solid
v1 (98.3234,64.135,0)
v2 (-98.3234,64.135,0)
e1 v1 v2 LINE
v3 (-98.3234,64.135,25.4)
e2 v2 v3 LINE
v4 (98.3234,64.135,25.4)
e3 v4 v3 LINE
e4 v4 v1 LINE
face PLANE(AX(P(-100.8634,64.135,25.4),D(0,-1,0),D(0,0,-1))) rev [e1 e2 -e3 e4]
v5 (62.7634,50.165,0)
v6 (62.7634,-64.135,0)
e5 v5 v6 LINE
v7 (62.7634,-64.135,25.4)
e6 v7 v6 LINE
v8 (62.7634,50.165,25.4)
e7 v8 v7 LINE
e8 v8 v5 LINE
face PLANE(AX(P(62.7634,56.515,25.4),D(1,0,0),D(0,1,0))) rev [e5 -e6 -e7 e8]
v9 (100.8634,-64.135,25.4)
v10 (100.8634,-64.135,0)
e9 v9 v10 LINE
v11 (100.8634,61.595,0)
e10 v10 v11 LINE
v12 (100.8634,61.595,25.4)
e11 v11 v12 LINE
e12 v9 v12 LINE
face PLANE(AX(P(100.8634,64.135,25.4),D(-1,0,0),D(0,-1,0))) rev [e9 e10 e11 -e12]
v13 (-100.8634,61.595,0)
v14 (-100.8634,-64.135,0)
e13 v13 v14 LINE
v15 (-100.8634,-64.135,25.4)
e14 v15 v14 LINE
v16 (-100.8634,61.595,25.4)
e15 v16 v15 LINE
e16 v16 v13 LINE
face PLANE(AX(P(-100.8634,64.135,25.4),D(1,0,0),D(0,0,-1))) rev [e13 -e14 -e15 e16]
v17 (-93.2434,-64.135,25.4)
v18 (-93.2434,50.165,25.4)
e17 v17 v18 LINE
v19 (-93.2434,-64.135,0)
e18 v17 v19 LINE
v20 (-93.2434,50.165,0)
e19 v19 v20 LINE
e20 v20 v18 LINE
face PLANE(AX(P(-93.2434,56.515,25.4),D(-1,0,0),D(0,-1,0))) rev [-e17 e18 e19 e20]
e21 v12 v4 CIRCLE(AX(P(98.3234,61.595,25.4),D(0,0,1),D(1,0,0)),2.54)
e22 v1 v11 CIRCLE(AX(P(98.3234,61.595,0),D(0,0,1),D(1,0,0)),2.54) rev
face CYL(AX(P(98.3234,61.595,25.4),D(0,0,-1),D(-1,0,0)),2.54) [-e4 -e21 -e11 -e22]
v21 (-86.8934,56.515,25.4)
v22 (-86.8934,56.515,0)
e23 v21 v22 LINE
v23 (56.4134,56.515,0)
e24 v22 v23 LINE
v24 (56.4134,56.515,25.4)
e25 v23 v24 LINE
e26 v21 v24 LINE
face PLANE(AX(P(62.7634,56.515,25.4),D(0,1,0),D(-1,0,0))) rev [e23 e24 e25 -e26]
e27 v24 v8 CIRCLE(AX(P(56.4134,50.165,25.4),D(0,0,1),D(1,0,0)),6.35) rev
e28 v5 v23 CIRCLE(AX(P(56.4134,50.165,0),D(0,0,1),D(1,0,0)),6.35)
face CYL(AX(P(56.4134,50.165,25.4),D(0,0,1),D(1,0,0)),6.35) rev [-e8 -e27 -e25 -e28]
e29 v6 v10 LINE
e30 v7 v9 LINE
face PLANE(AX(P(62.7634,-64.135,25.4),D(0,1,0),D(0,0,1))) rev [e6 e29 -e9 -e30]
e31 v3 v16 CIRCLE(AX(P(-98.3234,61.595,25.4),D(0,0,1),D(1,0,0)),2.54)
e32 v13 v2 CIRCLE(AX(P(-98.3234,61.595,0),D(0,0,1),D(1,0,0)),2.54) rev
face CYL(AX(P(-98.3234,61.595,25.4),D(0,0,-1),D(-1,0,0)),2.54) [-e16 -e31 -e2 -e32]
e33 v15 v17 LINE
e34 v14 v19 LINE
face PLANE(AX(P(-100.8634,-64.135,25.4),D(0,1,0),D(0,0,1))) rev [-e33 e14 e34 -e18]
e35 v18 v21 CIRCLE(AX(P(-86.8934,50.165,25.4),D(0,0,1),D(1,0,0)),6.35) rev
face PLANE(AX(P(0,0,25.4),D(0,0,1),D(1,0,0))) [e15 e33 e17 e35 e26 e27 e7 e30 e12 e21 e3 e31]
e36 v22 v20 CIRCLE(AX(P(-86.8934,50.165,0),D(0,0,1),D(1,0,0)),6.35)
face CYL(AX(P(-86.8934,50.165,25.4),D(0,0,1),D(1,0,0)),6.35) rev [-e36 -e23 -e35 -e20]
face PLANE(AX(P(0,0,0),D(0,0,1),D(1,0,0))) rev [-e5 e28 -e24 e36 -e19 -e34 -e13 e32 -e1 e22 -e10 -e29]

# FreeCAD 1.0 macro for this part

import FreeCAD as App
import Part
import Sketcher
Q = App.Units.Quantity


def edges_at(feature, points):
    """Names of the edges that pass closest to the given points."""
    edges = feature.Shape.Edges
    near = lambda p: min(range(len(edges)), key=lambda i: edges[i].distToShape(Part.Vertex(*p))[0])
    return sorted({f"Edge{near(p) + 1}" for p in points})

doc = App.newDocument("Part")
params = doc.addObject("Spreadsheet::Sheet", "Params")
for row, (alias, value) in enumerate([
    ("sketch1_width", "1.5 in"),
    ("sketch1_width2", "0.3 in"),
    ("sketch1_height", "5.05 in"),
    ("sketch1_height2", "4.75 in"),
    ("sketch1_width3", "7.942 in"),
    ("pad1_length", "1 in"),
    ("fillet_radius", "0.25 in"),
    ("fillet2_radius", "0.1 in"),
], start=1):
    params.set(f"A{row}", alias)
    params.set(f"B{row}", "=" + value)
    params.setAlias(f"B{row}", alias)

body = doc.addObject("PartDesign::Body", "Body")

sketch1 = doc.addObject("Sketcher::SketchObject", "Sketch")
body.addObject(sketch1)
sketch1.AttachmentSupport = (doc.XY_Plane, [""])
sketch1.MapMode = "FlatFace"
sketch1.addGeometry([
    Part.LineSegment(App.Vector(63, -64, 0), App.Vector(101, -64, 0)),
    Part.LineSegment(App.Vector(101, -64, 0), App.Vector(101, 64, 0)),
    Part.LineSegment(App.Vector(101, 64, 0), App.Vector(-101, 64, 0)),
    Part.LineSegment(App.Vector(-101, 64, 0), App.Vector(-101, -64, 0)),
    Part.LineSegment(App.Vector(-101, -64, 0), App.Vector(-93, -64, 0)),
    Part.LineSegment(App.Vector(-93, -64, 0), App.Vector(-93, 57, 0)),
    Part.LineSegment(App.Vector(-93, 57, 0), App.Vector(63, 57, 0)),
    Part.LineSegment(App.Vector(63, 57, 0), App.Vector(63, -64, 0)),
], False)
sketch1.addConstraint([
    Sketcher.Constraint("Coincident", 0, 2, 1, 1),
    Sketcher.Constraint("Coincident", 1, 2, 2, 1),
    Sketcher.Constraint("Coincident", 2, 2, 3, 1),
    Sketcher.Constraint("Coincident", 3, 2, 4, 1),
    Sketcher.Constraint("Coincident", 4, 2, 5, 1),
    Sketcher.Constraint("Coincident", 5, 2, 6, 1),
    Sketcher.Constraint("Coincident", 6, 2, 7, 1),
    Sketcher.Constraint("Coincident", 7, 2, 0, 1),
    Sketcher.Constraint("Horizontal", 0),
    Sketcher.Constraint("Vertical", 1),
    Sketcher.Constraint("Horizontal", 2),
    Sketcher.Constraint("Vertical", 3),
    Sketcher.Constraint("Horizontal", 4),
    Sketcher.Constraint("Vertical", 5),
    Sketcher.Constraint("Horizontal", 6),
    Sketcher.Constraint("Vertical", 7),
    Sketcher.Constraint("Symmetric", 0, 2, 2, 2, -1, 1),
    Sketcher.Constraint("Horizontal", 0, 2, 3, 2),
    Sketcher.Constraint("DistanceX", 0, 1, 0, 2, Q("1.5 in")),
    Sketcher.Constraint("DistanceX", 4, 1, 4, 2, Q("0.3 in")),
    Sketcher.Constraint("DistanceY", 1, 1, 1, 2, Q("5.05 in")),
    Sketcher.Constraint("DistanceY", 5, 1, 5, 2, Q("4.75 in")),
    Sketcher.Constraint("DistanceX", 2, 2, 2, 1, Q("7.942 in")),
])
sketch1.setExpression("Constraints[18]", "Params.sketch1_width")
sketch1.setExpression("Constraints[19]", "Params.sketch1_width2")
sketch1.setExpression("Constraints[20]", "Params.sketch1_height")
sketch1.setExpression("Constraints[21]", "Params.sketch1_height2")
sketch1.setExpression("Constraints[22]", "Params.sketch1_width3")
pad1 = doc.addObject("PartDesign::Pad", "Pad")
body.addObject(pad1)
pad1.Profile = sketch1
pad1.setExpression("Length", "Params.pad1_length")
doc.recompute()

fillet = doc.addObject("PartDesign::Fillet", "Fillet")
body.addObject(fillet)
fillet.Base = (pad1, edges_at(pad1, [(62.763, 56.515, 12.7), (-93.243, 56.515, 12.7)]))
fillet.setExpression("Radius", "Params.fillet_radius")
doc.recompute()

fillet2 = doc.addObject("PartDesign::Fillet", "Fillet001")
body.addObject(fillet2)
fillet2.Base = (fillet, edges_at(fillet, [(-100.863, 64.135, 12.7), (100.863, 64.135, 12.7)]))
fillet2.setExpression("Radius", "Params.fillet2_radius")

doc.recompute()
